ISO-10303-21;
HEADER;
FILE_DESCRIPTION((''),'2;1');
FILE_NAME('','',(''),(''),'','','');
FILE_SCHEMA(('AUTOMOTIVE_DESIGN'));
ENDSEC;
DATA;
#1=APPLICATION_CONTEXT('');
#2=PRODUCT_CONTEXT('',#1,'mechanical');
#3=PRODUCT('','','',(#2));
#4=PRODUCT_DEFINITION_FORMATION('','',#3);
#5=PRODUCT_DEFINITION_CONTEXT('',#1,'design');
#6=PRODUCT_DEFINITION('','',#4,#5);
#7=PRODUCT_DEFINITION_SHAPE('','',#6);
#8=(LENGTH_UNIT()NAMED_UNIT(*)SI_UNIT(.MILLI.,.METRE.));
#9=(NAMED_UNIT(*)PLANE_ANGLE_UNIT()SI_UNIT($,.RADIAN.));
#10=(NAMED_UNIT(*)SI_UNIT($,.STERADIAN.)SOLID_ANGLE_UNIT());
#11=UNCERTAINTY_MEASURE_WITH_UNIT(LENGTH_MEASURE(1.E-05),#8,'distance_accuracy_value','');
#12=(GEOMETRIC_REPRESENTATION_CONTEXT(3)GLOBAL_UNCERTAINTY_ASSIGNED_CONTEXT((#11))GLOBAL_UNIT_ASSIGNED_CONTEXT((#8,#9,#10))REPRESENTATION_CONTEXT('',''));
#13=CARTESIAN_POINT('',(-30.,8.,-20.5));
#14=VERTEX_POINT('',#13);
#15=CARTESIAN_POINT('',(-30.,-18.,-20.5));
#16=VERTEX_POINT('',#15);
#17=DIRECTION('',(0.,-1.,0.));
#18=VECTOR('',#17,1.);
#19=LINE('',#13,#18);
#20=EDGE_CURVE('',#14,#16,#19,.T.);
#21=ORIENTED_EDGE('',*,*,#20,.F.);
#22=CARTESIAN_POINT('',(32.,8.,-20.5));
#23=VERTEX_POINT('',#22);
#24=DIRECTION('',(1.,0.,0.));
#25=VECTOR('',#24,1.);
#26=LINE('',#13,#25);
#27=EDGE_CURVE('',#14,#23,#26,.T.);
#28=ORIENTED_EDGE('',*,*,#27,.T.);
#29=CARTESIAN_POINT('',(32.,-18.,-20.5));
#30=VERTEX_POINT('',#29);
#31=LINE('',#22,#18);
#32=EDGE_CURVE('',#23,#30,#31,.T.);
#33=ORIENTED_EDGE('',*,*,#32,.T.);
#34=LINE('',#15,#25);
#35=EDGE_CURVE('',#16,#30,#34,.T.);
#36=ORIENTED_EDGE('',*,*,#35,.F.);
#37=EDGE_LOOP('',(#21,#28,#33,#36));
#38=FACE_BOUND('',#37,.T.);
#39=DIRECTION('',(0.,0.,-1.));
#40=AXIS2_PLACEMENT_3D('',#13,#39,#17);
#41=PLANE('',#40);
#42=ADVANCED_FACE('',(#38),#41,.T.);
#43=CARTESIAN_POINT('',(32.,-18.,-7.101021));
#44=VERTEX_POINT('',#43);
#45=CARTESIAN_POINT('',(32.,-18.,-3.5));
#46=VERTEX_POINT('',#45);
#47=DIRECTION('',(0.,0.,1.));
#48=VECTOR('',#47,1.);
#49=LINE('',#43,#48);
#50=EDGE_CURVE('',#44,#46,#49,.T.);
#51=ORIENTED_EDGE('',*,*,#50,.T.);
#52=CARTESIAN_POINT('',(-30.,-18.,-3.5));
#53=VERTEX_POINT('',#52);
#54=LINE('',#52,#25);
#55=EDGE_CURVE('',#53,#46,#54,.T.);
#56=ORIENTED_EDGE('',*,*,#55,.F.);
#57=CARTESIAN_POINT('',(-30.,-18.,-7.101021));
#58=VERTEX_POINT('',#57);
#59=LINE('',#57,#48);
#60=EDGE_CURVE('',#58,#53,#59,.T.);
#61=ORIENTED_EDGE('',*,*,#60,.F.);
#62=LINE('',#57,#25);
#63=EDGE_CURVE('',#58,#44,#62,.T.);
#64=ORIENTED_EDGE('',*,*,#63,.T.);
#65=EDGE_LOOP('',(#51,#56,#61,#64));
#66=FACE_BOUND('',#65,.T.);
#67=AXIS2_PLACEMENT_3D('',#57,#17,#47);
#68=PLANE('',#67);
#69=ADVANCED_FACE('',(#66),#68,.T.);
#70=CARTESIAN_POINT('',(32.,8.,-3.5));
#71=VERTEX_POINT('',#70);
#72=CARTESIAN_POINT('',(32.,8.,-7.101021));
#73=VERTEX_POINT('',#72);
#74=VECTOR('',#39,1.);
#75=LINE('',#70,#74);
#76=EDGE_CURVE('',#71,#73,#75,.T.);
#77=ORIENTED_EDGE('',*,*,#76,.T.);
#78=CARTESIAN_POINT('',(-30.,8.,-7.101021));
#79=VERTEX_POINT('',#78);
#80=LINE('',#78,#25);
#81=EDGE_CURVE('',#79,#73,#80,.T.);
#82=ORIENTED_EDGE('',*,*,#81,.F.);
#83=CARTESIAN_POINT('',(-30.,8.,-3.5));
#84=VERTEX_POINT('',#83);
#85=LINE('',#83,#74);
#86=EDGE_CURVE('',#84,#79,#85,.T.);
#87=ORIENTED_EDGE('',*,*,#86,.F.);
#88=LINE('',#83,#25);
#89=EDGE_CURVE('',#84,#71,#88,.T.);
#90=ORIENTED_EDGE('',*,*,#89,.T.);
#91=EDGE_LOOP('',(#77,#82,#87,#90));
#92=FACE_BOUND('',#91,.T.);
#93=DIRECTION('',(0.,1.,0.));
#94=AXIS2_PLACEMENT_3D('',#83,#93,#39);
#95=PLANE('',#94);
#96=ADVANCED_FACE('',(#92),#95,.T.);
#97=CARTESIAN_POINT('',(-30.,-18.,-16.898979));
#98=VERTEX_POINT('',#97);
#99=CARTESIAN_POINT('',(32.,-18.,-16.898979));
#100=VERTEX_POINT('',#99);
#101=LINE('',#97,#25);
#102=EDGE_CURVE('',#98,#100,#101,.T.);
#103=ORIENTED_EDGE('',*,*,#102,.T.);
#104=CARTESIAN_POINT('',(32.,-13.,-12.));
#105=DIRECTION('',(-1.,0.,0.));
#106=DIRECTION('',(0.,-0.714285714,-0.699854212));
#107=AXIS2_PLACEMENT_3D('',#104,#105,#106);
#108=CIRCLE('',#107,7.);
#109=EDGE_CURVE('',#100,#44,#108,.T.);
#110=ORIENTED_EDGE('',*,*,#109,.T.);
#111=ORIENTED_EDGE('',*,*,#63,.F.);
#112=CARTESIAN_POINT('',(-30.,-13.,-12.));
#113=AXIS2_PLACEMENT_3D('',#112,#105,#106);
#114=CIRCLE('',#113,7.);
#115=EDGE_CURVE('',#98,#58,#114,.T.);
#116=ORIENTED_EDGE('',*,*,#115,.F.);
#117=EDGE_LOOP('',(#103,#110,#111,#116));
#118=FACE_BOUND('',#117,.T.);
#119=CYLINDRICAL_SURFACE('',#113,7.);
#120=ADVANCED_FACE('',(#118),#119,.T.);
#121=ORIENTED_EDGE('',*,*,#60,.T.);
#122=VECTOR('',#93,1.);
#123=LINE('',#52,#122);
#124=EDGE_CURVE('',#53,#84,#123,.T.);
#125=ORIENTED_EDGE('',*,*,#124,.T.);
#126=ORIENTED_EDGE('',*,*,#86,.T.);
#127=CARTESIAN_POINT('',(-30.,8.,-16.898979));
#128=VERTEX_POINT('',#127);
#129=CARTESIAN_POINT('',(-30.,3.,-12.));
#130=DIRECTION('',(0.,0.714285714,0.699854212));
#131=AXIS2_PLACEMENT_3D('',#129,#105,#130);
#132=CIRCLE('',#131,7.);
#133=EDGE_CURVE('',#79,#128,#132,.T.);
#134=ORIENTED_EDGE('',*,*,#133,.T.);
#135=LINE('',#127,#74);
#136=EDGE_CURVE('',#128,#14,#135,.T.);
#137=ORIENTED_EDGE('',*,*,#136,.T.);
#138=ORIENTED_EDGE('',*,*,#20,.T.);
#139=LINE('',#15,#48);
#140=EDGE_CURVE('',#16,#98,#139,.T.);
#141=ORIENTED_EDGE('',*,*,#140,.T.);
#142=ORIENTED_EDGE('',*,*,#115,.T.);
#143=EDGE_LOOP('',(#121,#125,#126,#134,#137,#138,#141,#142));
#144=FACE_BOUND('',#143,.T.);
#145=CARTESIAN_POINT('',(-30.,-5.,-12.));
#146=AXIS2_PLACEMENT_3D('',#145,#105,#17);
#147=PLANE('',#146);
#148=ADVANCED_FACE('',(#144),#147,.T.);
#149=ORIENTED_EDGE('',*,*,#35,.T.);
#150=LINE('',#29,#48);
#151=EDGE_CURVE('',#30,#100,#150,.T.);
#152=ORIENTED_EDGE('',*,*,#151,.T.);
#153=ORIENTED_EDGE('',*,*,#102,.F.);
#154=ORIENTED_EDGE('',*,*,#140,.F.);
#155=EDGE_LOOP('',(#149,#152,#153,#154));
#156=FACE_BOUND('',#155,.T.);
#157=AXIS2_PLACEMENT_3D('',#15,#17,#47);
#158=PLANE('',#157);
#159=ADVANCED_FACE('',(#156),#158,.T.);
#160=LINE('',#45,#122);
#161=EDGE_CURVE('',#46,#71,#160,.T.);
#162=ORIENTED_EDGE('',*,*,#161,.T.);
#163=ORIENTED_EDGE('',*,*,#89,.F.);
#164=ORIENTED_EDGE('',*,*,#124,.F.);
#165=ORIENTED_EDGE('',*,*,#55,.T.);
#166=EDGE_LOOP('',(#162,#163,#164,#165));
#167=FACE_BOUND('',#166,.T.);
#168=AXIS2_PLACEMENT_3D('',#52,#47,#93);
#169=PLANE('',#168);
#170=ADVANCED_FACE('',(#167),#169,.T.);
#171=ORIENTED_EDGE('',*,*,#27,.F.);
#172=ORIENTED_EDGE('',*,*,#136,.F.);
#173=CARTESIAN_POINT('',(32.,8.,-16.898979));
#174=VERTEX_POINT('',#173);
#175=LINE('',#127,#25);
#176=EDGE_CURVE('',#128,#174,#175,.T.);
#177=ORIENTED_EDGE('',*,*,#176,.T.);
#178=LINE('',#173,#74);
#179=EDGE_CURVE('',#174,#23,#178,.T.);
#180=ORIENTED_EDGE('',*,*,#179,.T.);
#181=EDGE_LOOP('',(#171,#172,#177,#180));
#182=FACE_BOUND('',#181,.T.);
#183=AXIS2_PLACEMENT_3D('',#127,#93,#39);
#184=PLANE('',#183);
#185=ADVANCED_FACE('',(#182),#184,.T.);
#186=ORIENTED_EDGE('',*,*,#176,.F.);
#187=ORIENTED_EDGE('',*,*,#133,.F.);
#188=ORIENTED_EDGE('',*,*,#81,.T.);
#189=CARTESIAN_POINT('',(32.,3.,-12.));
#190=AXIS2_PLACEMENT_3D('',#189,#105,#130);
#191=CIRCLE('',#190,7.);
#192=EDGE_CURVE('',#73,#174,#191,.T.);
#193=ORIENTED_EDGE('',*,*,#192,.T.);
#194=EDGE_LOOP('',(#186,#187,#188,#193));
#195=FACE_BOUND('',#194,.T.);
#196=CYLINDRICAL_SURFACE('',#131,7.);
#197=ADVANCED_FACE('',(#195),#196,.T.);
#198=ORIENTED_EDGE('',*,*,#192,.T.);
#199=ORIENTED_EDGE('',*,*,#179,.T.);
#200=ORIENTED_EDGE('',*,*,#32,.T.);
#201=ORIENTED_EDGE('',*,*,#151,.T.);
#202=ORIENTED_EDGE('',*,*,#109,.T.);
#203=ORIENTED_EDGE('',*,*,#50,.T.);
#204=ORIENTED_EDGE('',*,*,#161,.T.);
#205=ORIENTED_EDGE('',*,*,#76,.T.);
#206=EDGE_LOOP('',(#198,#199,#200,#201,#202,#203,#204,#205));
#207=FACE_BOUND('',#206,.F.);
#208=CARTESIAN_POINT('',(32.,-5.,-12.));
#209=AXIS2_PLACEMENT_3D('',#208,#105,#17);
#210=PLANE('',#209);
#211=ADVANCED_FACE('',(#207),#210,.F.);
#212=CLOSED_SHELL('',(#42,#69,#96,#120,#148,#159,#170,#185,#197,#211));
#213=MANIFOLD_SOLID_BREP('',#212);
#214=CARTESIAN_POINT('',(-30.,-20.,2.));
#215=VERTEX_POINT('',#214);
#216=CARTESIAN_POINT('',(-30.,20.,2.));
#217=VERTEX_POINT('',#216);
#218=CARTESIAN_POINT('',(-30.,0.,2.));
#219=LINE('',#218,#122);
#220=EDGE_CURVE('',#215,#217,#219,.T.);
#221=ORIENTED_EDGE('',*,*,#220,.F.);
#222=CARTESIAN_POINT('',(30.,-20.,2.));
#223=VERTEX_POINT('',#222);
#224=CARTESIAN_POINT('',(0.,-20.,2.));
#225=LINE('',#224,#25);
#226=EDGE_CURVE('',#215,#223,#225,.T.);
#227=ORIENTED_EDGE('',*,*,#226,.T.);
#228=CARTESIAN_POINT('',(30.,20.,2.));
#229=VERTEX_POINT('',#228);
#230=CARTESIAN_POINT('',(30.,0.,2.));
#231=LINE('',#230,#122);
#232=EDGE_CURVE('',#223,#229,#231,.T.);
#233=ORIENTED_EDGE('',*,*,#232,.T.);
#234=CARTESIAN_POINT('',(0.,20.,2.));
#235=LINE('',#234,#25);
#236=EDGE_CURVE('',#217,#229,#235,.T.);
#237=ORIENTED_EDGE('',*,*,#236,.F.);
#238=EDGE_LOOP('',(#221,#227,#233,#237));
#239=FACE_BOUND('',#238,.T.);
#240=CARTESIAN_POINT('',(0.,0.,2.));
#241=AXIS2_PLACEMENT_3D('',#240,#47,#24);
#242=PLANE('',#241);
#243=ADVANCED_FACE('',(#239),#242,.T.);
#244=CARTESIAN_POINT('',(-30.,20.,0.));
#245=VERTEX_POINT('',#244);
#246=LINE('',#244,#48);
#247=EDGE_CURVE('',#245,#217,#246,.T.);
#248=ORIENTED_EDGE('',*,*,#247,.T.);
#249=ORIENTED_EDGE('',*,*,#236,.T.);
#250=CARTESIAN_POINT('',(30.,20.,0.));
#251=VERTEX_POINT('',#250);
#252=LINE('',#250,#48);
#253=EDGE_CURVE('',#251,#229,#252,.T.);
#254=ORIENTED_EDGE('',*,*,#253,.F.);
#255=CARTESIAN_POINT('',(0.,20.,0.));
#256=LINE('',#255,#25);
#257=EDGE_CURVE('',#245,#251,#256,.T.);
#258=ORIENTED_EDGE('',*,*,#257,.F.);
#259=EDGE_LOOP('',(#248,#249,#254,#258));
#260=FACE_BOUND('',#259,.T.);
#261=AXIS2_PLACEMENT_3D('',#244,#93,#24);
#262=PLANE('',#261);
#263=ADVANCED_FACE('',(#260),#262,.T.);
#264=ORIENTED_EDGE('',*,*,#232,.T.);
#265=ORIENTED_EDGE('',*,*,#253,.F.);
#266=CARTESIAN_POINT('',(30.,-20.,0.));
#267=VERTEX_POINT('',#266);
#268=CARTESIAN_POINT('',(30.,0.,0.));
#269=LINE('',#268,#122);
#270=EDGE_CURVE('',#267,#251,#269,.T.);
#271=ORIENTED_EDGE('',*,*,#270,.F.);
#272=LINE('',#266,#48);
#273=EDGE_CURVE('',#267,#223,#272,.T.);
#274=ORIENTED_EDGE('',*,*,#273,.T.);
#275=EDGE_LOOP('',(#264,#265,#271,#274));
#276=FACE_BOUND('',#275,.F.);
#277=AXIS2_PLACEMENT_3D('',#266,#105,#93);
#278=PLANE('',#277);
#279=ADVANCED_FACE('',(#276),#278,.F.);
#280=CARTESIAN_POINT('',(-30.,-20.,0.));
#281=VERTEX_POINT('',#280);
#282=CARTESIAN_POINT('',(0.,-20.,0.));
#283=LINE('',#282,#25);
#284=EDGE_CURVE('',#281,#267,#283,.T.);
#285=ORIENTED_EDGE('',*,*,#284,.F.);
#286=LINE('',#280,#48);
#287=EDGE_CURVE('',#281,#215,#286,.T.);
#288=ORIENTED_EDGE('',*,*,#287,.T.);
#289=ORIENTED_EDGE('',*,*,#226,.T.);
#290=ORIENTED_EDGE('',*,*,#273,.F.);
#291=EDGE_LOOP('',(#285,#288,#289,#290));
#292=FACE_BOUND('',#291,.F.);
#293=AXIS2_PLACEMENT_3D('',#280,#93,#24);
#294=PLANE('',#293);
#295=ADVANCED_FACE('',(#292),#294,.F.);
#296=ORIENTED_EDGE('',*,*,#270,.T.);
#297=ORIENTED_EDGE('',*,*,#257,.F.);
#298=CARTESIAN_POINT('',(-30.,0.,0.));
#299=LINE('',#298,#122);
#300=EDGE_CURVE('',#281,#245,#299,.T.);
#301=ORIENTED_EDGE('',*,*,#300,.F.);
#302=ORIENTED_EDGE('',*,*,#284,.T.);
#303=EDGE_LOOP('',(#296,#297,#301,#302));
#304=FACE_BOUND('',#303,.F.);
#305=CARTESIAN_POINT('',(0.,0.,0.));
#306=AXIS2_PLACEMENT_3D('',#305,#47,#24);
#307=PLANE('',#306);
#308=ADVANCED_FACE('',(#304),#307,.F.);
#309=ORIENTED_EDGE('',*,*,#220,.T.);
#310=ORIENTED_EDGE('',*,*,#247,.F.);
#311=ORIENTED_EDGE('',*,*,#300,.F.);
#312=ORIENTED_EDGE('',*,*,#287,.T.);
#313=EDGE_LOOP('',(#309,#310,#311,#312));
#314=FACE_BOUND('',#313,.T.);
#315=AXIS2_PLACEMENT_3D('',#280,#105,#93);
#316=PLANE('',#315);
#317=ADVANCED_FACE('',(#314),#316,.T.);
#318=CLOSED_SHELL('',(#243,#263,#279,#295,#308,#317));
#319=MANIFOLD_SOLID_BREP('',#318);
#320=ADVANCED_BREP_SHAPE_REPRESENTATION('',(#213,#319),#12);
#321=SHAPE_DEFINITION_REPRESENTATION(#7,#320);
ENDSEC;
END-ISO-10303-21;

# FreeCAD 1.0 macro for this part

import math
import FreeCAD as App
import Part
import Sketcher

V = App.Vector


def add_polygon(sketch, points):
    """Adds a closed chain of lines whose ends are joined by coincident constraints."""
    first, n = sketch.GeometryCount, len(points)
    for a, b in zip(points, points[1:] + points[:1]):
        sketch.addGeometry(Part.LineSegment(App.Vector(*a, 0), App.Vector(*b, 0)), False)
    for i in range(n):
        sketch.addConstraint(Sketcher.Constraint("Coincident", first + i, 2, first + (i + 1) % n, 1))

doc = App.newDocument("Part")
params = doc.addObject("Spreadsheet::Sheet", "Params")
for row, (alias, value) in enumerate([
    ("sketch1_width", "60 mm"),
    ("sketch1_height", "40 mm"),
    ("pad1_length", "2 mm"),
    ("sketch2_radius", "7 mm"),
    ("sketch2_width", "26 mm"),
    ("pad2_length", "62 mm"),
], start=1):
    params.set(f"A{row}", alias)
    params.set(f"B{row}", "=" + value)
    params.setAlias(f"B{row}", alias)

body = doc.addObject("PartDesign::Body", "Body")

# Sketch on XY plane
sketch1 = body.newObject("Sketcher::SketchObject", "Sketch")
sketch1.AttachmentSupport = (doc.getObject("XY_Plane"), [""])
sketch1.MapMode = "FlatFace"
add_polygon(sketch1, [(-30, 20), (-30, -20), (30, -20), (30, 20)])  # lines 0-3
sketch1.addConstraint(Sketcher.Constraint("Vertical", 0))
sketch1.addConstraint(Sketcher.Constraint("Horizontal", 1))
sketch1.addConstraint(Sketcher.Constraint("Vertical", 2))
sketch1.addConstraint(Sketcher.Constraint("Horizontal", 3))
sketch1.addConstraint(Sketcher.Constraint("Symmetric", 0, 2, 2, 2, -1, 1))
sketch1.addConstraint(Sketcher.Constraint("DistanceX", 1, 1, 1, 2, 60.0))
sketch1.addConstraint(Sketcher.Constraint("DistanceY", 0, 2, 0, 1, 40.0))
sketch1.setExpression("Constraints[9]", "Params.sketch1_width")
sketch1.setExpression("Constraints[10]", "Params.sketch1_height")
pad1 = body.newObject("PartDesign::Pad", "Pad")
pad1.Profile = sketch1
pad1.setExpression("Length", "Params.pad1_length")
body2 = doc.addObject("PartDesign::Body", "Body001")

# Sketch on YZ plane
sketch2 = body2.newObject("Sketcher::SketchObject", "Sketch001")
sketch2.AttachmentSupport = (doc.getObject("YZ_Plane001"), [""])
sketch2.MapMode = "FlatFace"
sketch2.AttachmentOffset = App.Placement(V(0, 0, -30), App.Rotation())
sketch2.addGeometry(Part.LineSegment(V(8, -3.5, 0), V(8, -7.101021, 0)), False)
sketch2.addGeometry(Part.ArcOfCircle(Part.Circle(V(3, -12, 0), V(0, 0, 1), 7), math.radians(-44.415309), math.radians(44.415309)), False)
sketch2.addGeometry(Part.LineSegment(V(8, -16.898979, 0), V(8, -20.5, 0)), False)
sketch2.addGeometry(Part.LineSegment(V(8, -20.5, 0), V(-18, -20.5, 0)), False)
sketch2.addGeometry(Part.LineSegment(V(-18, -20.5, 0), V(-18, -16.898979, 0)), False)
sketch2.addGeometry(Part.ArcOfCircle(Part.Circle(V(-13, -12, 0), V(0, 0, 1), 7), math.radians(135.584691), math.radians(224.415309)), False)
sketch2.addGeometry(Part.LineSegment(V(-18, -7.101021, 0), V(-18, -3.5, 0)), False)
sketch2.addGeometry(Part.LineSegment(V(-18, -3.5, 0), V(8, -3.5, 0)), False)
sketch2.addConstraint(Sketcher.Constraint("Coincident", 0, 2, 1, 2))
sketch2.addConstraint(Sketcher.Constraint("Coincident", 1, 1, 2, 1))
sketch2.addConstraint(Sketcher.Constraint("Coincident", 2, 2, 3, 1))
sketch2.addConstraint(Sketcher.Constraint("Coincident", 3, 2, 4, 1))
sketch2.addConstraint(Sketcher.Constraint("Coincident", 4, 2, 5, 2))
sketch2.addConstraint(Sketcher.Constraint("Coincident", 5, 1, 6, 1))
sketch2.addConstraint(Sketcher.Constraint("Coincident", 6, 2, 7, 1))
sketch2.addConstraint(Sketcher.Constraint("Coincident", 7, 2, 0, 1))
sketch2.addConstraint(Sketcher.Constraint("Vertical", 0))
sketch2.addConstraint(Sketcher.Constraint("Vertical", 2))
sketch2.addConstraint(Sketcher.Constraint("Horizontal", 3))
sketch2.addConstraint(Sketcher.Constraint("Vertical", 4))
sketch2.addConstraint(Sketcher.Constraint("Vertical", 6))
sketch2.addConstraint(Sketcher.Constraint("Horizontal", 7))
sketch2.addConstraint(Sketcher.Constraint("Equal", 1, 5))
sketch2.addConstraint(Sketcher.Constraint("Horizontal", 1, 3, 5, 3))
sketch2.addConstraint(Sketcher.Constraint("Horizontal", 1, 1, 4, 2))
sketch2.addConstraint(Sketcher.Constraint("Horizontal", 0, 2, 5, 1))
sketch2.addConstraint(Sketcher.Constraint("Vertical", 0, 2, 1, 1))
sketch2.addConstraint(Sketcher.Constraint("Equal", 0, 2))
sketch2.addConstraint(Sketcher.Constraint("Radius", 1, 7.0))
sketch2.addConstraint(Sketcher.Constraint("DistanceX", 3, 2, 3, 1, 26.0))
sketch2.addConstraint(Sketcher.Constraint("DistanceX", -1, 1, 1, 3, 3.0))
sketch2.addConstraint(Sketcher.Constraint("DistanceY", 1, 3, -1, 1, 12.0))
sketch2.addConstraint(Sketcher.Constraint("DistanceX", 5, 3, -1, 1, 13.0))
sketch2.addConstraint(Sketcher.Constraint("DistanceY", 3, 2, 6, 2, 17.0))
sketch2.setExpression("Constraints[20]", "Params.sketch2_radius")
sketch2.setExpression("Constraints[21]", "Params.sketch2_width")
pad2 = body2.newObject("PartDesign::Pad", "Pad001")
pad2.Profile = sketch2
pad2.setExpression("Length", "Params.pad2_length")

doc.recompute()
